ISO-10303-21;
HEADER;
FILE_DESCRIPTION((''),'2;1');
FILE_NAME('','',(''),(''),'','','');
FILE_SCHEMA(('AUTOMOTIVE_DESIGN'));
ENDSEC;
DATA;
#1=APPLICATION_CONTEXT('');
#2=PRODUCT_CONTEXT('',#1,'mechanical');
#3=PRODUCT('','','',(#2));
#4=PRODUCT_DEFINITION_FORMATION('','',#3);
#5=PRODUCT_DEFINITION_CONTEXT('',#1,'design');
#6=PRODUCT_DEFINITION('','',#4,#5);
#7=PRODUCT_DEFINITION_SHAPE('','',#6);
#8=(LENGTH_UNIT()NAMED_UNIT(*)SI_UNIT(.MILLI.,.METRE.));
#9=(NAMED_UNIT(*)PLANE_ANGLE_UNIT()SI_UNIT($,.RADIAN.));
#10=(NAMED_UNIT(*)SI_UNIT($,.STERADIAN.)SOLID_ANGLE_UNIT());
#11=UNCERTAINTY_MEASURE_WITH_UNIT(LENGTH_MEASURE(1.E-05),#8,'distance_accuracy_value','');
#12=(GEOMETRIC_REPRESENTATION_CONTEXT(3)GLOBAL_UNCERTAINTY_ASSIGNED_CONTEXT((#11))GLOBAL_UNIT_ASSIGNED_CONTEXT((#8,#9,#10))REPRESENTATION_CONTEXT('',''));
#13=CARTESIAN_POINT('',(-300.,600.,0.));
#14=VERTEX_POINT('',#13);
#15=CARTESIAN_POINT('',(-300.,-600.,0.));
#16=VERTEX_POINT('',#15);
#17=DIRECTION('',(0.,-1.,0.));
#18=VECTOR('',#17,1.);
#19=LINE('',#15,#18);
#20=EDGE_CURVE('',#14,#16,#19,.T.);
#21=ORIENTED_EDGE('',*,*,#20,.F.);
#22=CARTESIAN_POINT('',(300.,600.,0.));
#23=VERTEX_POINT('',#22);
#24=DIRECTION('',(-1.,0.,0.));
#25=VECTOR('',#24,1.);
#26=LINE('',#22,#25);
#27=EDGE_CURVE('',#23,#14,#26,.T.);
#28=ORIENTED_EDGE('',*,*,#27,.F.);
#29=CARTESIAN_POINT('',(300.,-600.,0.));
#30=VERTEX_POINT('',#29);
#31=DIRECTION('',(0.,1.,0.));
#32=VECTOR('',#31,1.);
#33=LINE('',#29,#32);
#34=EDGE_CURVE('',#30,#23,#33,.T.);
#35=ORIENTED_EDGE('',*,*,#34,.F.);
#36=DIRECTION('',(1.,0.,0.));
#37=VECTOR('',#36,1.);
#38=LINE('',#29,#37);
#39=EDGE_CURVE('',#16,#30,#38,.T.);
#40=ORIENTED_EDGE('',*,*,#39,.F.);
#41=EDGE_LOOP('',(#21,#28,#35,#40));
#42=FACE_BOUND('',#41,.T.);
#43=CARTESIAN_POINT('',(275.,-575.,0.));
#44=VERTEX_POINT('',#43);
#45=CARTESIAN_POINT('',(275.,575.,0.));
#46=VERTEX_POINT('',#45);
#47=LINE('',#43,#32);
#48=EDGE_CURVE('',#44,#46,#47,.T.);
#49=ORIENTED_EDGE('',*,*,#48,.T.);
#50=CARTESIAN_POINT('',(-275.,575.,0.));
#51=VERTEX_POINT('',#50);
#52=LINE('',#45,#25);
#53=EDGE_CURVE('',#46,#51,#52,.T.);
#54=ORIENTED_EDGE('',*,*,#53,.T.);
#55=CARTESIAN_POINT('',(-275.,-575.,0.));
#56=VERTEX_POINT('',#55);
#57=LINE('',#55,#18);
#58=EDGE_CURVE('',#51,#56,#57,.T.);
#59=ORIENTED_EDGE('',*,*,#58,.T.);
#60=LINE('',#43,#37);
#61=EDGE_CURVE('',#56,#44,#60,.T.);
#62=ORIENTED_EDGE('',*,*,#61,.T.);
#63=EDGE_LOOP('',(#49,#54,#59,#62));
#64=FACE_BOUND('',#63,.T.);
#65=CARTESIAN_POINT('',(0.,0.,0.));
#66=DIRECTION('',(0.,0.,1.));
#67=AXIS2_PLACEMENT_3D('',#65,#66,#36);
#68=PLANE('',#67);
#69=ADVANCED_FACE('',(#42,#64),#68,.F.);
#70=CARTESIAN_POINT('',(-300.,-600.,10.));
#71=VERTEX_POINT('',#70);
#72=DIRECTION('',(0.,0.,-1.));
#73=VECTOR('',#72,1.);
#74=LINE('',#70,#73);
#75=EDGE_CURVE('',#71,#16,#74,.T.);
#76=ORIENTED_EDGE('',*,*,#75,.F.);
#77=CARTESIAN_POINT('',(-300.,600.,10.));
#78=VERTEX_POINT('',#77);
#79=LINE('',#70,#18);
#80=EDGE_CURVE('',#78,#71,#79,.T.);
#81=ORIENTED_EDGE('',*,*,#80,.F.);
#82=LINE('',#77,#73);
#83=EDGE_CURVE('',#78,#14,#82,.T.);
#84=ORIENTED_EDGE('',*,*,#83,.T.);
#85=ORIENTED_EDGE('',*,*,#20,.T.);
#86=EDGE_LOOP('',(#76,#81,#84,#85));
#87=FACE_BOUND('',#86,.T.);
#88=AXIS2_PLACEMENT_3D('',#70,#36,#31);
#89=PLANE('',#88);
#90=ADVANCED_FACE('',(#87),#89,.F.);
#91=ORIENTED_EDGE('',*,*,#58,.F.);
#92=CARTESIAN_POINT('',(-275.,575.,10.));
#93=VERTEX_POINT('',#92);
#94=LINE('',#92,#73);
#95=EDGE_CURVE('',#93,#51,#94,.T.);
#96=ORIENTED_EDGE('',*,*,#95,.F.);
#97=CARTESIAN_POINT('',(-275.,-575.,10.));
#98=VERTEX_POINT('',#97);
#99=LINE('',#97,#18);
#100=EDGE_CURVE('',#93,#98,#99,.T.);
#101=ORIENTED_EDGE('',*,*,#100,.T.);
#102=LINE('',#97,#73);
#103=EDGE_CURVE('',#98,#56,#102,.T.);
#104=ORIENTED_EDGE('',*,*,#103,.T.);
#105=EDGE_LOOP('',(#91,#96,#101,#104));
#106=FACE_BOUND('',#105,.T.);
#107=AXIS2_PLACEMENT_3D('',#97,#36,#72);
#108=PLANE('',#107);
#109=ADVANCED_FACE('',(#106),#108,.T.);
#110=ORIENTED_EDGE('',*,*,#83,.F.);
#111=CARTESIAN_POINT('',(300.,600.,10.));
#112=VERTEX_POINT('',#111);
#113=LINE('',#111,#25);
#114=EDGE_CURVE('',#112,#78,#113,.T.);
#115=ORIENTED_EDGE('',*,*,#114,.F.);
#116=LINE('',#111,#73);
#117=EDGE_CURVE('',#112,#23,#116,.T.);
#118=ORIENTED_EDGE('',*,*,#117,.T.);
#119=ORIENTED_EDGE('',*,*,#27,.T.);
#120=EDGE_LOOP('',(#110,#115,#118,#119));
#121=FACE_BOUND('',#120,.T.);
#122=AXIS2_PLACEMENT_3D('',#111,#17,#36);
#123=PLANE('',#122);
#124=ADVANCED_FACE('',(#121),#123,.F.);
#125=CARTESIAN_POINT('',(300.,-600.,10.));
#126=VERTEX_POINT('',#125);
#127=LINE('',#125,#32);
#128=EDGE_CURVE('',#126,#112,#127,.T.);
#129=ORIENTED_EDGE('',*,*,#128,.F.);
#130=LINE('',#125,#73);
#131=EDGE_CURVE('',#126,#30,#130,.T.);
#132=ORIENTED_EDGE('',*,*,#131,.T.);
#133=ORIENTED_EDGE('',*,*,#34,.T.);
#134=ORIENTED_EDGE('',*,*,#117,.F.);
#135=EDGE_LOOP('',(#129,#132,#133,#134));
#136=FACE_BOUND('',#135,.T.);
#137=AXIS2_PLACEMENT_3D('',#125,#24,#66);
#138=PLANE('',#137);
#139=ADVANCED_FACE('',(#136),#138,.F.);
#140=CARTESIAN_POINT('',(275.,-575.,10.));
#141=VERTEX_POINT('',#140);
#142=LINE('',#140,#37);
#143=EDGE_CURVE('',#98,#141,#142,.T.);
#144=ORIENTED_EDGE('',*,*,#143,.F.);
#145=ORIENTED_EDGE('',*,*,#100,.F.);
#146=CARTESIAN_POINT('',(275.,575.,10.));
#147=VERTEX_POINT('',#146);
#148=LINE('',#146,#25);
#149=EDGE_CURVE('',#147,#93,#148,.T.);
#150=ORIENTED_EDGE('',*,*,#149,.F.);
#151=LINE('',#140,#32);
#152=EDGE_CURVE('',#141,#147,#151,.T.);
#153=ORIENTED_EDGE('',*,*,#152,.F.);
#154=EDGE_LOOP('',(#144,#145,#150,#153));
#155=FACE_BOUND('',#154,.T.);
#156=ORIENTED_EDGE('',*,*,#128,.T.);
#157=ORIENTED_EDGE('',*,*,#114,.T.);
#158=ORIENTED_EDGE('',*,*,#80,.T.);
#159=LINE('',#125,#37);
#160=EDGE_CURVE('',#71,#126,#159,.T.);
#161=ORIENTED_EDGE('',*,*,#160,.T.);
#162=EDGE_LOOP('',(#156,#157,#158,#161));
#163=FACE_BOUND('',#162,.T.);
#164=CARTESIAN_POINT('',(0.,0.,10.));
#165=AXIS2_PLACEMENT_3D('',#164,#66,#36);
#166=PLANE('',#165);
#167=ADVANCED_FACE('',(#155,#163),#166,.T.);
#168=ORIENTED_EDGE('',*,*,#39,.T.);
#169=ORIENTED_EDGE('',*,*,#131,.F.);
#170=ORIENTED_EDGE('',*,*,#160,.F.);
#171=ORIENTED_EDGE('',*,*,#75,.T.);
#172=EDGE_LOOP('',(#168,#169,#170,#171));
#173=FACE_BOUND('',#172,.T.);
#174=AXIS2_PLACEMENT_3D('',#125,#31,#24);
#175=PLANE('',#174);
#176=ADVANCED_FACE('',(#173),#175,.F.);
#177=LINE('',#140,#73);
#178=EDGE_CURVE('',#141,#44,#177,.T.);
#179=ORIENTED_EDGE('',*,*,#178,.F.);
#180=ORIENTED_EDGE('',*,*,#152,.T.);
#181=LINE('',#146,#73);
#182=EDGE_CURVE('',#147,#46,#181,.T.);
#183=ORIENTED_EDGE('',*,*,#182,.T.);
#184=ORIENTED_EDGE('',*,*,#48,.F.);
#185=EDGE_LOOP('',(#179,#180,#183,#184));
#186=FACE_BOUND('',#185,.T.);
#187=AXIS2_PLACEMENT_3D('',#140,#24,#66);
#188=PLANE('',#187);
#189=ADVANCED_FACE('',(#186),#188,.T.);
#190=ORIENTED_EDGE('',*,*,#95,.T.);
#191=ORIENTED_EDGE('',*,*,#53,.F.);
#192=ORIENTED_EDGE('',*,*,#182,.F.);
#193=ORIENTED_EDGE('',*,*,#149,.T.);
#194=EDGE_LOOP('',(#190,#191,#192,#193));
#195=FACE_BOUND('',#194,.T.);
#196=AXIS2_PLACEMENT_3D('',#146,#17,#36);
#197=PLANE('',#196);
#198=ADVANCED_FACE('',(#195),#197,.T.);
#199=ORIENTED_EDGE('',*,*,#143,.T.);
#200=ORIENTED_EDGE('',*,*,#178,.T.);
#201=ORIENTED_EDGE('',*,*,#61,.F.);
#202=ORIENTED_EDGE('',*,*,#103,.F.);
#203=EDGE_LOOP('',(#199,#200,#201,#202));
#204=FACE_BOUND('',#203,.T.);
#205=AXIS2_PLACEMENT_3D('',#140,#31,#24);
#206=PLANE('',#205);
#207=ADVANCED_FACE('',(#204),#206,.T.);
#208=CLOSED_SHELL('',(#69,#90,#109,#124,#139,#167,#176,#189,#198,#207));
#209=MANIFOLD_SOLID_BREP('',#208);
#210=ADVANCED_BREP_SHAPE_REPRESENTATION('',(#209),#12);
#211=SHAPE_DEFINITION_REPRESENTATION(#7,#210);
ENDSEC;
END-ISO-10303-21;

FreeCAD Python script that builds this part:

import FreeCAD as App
import Part
import Sketcher

V = App.Vector

doc = App.newDocument("Part")
body = doc.addObject("PartDesign::Body", "Body")

# Sketch on XY plane
sketch1 = body.newObject("Sketcher::SketchObject", "Sketch")
sketch1.AttachmentSupport = (doc.getObject("XY_Plane"), [""])
sketch1.MapMode = "FlatFace"
sketch1.addGeometry([
    Part.LineSegment(V(-300, 600, 0), V(-300, -600, 0)),  # 0
    Part.LineSegment(V(-300, -600, 0), V(300, -600, 0)),  # 1
    Part.LineSegment(V(300, -600, 0), V(300, 600, 0)),  # 2
    Part.LineSegment(V(300, 600, 0), V(-300, 600, 0)),  # 3
    Part.LineSegment(V(275, -575, 0), V(-275, -575, 0)),  # 4
    Part.LineSegment(V(-275, -575, 0), V(-275, 575, 0)),  # 5
    Part.LineSegment(V(-275, 575, 0), V(275, 575, 0)),  # 6
    Part.LineSegment(V(275, 575, 0), V(275, -575, 0)),  # 7
], False)
sketch1.addConstraint([
    Sketcher.Constraint("Coincident", 0, 2, 1, 1),
    Sketcher.Constraint("Coincident", 1, 2, 2, 1),
    Sketcher.Constraint("Coincident", 2, 2, 3, 1),
    Sketcher.Constraint("Coincident", 3, 2, 0, 1),
    Sketcher.Constraint("Coincident", 4, 2, 5, 1),
    Sketcher.Constraint("Coincident", 5, 2, 6, 1),
    Sketcher.Constraint("Coincident", 6, 2, 7, 1),
    Sketcher.Constraint("Coincident", 7, 2, 4, 1),
    Sketcher.Constraint("Vertical", 0),
    Sketcher.Constraint("Horizontal", 1),
    Sketcher.Constraint("Vertical", 2),
    Sketcher.Constraint("Horizontal", 3),
    Sketcher.Constraint("Horizontal", 4),
    Sketcher.Constraint("Vertical", 5),
    Sketcher.Constraint("Horizontal", 6),
    Sketcher.Constraint("Vertical", 7),
    Sketcher.Constraint("Symmetric", 0, 2, 2, 2, -1, 1),
    Sketcher.Constraint("Symmetric", 4, 2, 6, 2, -1, 1),
    Sketcher.Constraint("DistanceX", 1, 1, 1, 2, 600.0),
    Sketcher.Constraint("DistanceX", 4, 2, 4, 1, 550.0),
    Sketcher.Constraint("DistanceY", 0, 2, 0, 1, 1200.0),
    Sketcher.Constraint("DistanceY", 5, 1, 5, 2, 1150.0),
])
pad1 = body.newObject("PartDesign::Pad", "Pad")
pad1.Profile = sketch1
pad1.Length = 10

doc.recompute()
